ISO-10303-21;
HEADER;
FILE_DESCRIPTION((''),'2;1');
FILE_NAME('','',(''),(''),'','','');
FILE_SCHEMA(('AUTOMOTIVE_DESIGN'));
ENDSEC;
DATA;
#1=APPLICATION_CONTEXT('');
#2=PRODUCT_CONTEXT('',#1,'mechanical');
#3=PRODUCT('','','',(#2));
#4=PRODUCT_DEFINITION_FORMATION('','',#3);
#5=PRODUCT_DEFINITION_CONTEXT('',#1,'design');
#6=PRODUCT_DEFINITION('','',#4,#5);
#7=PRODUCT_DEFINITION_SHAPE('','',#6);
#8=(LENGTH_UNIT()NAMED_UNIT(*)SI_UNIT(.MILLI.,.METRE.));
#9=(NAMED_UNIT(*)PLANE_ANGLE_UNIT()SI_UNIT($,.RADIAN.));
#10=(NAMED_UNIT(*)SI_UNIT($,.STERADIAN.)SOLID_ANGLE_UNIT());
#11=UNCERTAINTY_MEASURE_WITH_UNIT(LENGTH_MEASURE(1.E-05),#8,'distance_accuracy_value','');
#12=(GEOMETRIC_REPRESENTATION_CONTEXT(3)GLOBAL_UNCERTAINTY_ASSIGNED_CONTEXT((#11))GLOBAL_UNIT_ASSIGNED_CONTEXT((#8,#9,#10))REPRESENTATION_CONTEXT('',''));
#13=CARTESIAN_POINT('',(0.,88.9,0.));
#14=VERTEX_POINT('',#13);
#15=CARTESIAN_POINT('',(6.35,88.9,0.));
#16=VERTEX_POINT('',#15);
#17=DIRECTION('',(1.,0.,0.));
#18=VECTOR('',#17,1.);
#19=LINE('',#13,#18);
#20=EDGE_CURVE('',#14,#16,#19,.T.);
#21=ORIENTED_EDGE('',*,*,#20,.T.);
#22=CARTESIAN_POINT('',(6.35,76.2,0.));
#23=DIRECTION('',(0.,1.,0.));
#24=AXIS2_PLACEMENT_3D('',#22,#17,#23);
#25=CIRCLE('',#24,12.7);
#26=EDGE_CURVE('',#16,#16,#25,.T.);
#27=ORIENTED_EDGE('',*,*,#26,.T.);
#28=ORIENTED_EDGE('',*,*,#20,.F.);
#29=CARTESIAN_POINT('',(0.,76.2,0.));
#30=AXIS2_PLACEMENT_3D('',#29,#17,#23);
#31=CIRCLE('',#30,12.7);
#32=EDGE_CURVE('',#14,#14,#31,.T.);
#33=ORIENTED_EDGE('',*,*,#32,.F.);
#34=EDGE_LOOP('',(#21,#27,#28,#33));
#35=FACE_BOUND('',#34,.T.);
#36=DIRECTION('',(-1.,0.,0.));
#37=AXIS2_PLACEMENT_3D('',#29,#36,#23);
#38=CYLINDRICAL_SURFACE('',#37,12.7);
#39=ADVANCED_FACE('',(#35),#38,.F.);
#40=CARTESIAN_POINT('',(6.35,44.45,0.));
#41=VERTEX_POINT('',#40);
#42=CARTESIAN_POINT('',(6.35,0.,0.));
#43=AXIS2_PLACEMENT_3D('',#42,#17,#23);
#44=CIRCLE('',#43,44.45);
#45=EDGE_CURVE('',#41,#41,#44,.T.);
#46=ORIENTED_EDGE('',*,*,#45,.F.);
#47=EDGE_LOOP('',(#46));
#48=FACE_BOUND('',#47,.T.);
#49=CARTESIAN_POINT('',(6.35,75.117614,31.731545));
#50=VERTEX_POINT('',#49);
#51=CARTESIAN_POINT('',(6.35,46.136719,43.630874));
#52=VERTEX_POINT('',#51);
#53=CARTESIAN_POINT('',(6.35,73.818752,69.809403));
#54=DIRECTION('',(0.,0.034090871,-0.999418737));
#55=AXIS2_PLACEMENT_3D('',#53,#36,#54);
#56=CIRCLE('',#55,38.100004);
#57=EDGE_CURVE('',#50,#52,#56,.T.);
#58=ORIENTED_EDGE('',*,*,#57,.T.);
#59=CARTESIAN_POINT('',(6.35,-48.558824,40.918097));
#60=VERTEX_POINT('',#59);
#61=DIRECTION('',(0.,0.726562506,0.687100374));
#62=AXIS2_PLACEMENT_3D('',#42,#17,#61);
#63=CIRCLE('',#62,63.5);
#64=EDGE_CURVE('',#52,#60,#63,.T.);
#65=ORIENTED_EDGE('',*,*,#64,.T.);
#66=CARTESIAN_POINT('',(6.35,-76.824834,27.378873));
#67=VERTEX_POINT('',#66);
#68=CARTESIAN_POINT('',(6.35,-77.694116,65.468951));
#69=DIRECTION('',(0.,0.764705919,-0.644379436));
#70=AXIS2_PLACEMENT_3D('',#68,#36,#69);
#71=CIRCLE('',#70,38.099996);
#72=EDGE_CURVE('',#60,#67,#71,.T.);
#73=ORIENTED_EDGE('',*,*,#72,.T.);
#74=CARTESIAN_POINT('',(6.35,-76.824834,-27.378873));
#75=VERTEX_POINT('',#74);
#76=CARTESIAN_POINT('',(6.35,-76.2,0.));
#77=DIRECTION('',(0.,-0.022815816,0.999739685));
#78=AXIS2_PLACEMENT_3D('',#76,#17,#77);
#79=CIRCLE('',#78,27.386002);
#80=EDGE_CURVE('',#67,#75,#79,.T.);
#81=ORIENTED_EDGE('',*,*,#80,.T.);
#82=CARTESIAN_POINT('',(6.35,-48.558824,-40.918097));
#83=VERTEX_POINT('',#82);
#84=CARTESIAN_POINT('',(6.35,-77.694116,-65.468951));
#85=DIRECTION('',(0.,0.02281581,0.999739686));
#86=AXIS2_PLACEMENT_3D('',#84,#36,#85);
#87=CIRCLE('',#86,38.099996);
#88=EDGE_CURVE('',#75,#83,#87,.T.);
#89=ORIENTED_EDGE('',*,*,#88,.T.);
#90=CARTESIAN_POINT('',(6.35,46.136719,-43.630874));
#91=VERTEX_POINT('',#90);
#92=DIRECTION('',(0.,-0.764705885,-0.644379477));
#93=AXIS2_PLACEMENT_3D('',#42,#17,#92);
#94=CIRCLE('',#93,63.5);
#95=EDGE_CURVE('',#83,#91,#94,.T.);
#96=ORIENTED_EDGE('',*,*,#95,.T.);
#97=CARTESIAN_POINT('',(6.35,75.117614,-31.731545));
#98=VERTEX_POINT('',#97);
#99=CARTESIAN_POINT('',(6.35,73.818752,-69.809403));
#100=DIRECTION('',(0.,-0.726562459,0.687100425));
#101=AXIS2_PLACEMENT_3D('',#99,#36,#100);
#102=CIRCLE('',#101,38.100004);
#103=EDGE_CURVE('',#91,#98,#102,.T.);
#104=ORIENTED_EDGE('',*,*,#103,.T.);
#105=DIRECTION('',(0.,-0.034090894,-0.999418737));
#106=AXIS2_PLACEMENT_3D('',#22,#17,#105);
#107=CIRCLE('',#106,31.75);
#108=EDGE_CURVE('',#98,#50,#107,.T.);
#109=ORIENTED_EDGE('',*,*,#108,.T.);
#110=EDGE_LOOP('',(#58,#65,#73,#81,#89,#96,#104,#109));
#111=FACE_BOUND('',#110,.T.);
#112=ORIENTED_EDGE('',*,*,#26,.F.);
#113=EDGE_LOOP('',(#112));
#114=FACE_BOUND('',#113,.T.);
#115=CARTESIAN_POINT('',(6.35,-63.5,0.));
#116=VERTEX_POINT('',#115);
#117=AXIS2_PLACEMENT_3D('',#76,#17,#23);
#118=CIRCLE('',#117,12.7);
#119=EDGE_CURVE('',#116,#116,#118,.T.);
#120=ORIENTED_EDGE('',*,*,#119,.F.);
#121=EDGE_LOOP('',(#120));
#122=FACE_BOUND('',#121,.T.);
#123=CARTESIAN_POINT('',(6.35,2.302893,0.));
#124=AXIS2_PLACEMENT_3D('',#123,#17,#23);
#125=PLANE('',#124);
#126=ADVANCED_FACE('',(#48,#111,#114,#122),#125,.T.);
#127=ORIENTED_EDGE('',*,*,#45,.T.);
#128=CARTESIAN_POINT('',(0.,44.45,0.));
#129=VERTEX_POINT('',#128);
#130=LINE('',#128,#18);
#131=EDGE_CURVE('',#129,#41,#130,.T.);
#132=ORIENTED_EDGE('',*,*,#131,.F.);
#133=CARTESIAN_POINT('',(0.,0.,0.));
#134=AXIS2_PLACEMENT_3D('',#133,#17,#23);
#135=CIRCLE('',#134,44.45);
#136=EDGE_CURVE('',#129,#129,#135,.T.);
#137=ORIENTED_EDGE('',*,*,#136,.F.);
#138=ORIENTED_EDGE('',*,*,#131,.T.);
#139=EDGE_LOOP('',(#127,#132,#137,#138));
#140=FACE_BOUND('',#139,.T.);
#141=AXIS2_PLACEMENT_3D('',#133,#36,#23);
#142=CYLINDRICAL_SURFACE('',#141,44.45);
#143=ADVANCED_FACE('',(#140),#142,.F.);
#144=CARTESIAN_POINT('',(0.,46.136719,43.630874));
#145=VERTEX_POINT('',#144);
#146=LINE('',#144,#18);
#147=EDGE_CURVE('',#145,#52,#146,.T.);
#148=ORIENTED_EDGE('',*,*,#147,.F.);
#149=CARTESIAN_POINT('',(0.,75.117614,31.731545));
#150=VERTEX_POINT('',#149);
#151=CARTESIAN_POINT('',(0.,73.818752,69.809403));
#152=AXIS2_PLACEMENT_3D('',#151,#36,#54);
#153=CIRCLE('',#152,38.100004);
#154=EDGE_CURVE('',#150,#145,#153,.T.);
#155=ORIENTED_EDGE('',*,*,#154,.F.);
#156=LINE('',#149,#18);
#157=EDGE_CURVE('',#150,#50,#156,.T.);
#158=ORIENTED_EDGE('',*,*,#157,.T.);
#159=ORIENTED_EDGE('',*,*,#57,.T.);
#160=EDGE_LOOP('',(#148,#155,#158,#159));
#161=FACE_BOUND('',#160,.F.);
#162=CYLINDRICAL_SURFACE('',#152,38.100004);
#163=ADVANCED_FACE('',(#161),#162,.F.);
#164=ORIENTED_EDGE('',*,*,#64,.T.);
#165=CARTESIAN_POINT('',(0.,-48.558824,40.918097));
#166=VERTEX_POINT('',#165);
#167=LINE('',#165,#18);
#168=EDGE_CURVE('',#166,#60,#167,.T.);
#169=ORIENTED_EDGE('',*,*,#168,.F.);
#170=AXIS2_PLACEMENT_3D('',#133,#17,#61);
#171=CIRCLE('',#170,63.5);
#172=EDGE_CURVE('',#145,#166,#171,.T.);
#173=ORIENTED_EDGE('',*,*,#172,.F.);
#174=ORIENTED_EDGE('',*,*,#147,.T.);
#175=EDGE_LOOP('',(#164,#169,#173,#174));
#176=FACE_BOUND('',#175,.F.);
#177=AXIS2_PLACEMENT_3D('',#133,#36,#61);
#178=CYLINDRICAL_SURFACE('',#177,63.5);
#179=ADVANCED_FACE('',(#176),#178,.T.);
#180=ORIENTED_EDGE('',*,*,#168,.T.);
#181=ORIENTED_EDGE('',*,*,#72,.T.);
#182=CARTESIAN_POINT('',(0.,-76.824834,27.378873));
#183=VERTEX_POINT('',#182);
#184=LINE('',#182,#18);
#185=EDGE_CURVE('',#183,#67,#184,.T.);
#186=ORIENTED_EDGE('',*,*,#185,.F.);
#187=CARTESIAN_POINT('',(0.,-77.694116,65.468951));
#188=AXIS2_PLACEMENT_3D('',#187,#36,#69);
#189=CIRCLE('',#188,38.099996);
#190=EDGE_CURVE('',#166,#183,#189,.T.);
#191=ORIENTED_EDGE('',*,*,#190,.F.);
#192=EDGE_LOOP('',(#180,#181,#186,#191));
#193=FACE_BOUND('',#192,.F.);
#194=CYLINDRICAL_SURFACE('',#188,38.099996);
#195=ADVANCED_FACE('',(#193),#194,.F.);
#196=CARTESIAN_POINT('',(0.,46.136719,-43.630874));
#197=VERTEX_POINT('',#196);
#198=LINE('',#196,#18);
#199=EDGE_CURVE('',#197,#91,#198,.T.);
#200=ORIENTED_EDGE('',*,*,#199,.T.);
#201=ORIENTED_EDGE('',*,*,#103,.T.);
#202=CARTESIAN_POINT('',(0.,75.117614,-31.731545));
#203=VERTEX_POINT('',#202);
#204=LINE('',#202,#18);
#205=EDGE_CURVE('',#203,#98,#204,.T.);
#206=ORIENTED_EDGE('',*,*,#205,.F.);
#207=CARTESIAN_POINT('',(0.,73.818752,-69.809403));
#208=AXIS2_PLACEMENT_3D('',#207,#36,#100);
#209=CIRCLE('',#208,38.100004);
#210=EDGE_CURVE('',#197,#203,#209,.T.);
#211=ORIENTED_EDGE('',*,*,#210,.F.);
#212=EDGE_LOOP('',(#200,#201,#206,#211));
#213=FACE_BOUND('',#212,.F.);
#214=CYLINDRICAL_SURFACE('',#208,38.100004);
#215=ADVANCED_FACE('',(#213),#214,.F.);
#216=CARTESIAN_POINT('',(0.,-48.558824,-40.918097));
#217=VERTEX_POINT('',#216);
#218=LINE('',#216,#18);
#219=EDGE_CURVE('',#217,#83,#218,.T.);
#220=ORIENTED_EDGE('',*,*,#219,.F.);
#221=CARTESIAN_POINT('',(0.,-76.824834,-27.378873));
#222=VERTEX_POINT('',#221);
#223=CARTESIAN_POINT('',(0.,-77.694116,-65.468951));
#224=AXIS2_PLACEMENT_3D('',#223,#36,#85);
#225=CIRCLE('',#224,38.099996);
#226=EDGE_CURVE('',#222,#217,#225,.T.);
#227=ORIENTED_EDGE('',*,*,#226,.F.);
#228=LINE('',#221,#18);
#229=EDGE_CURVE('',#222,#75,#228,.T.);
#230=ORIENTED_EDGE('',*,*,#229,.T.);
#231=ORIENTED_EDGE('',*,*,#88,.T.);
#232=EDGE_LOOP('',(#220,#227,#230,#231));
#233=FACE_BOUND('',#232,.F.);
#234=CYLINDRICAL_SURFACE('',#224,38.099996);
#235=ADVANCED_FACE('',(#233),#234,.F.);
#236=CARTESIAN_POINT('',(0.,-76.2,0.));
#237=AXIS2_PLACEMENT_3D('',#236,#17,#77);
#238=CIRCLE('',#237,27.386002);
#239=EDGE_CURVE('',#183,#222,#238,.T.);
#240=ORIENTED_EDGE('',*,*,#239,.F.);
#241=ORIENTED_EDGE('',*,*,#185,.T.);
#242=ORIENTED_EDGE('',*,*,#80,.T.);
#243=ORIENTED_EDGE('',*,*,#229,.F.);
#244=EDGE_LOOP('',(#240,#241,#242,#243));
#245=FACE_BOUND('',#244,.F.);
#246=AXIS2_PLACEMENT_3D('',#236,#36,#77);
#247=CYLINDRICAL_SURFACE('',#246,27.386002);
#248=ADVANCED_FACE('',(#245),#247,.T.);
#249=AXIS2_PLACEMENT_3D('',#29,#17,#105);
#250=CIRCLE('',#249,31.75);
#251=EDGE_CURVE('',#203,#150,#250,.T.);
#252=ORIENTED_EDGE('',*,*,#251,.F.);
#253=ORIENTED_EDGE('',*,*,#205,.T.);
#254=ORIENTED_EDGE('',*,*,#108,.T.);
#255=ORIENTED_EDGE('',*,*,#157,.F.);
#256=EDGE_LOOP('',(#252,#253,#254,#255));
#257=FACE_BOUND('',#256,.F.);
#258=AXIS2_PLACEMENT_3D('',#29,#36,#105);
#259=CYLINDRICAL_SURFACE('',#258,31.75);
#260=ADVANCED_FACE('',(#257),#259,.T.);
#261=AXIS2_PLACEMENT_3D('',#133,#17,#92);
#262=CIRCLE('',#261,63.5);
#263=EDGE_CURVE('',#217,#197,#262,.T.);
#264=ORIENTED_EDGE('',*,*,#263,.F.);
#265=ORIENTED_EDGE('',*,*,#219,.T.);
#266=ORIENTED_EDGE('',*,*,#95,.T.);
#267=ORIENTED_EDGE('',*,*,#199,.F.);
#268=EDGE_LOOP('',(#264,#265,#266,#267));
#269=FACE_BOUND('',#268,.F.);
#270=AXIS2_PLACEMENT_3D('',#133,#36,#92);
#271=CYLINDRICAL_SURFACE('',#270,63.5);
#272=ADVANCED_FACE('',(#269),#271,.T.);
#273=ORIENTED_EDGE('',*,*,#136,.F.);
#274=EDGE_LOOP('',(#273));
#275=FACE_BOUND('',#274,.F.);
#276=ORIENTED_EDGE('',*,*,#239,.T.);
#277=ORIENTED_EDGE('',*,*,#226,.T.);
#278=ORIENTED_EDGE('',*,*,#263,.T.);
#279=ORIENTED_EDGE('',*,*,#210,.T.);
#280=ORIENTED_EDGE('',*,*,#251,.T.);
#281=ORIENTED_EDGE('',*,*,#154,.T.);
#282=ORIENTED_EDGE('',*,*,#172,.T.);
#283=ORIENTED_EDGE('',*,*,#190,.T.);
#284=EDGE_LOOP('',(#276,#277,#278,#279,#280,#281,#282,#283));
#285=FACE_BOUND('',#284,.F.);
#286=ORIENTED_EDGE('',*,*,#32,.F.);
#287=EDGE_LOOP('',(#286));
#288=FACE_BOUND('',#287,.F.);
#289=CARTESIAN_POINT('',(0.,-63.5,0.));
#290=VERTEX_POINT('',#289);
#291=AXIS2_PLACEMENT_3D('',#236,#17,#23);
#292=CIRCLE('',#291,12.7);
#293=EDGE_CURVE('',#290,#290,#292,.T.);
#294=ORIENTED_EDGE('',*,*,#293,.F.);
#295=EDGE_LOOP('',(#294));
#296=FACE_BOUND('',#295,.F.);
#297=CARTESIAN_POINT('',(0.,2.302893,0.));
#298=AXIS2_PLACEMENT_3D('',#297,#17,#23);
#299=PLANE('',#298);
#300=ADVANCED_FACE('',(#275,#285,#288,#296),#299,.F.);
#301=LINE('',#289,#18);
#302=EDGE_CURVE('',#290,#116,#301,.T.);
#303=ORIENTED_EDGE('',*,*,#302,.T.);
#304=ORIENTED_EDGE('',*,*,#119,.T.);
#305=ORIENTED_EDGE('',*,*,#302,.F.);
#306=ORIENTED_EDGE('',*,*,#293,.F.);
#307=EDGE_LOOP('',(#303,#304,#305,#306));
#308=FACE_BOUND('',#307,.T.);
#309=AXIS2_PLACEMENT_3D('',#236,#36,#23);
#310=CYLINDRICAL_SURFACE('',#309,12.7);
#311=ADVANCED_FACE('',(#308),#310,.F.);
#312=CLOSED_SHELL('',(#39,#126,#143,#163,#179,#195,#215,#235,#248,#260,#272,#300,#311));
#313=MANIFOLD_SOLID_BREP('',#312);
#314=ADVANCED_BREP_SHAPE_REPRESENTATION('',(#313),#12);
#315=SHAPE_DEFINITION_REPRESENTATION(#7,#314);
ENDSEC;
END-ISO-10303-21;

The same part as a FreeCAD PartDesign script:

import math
import FreeCAD as App
import Part
import Sketcher

V = App.Vector
Q = App.Units.Quantity

doc = App.newDocument("Part")
params = doc.addObject("Spreadsheet::Sheet", "Params")
for row, (alias, value) in enumerate([
    ("sketch1_diameter", "1 in"),
    ("sketch1_diameter2", "3.5 in"),
    ("sketch1_radius", "1.4999998 in"),
    ("sketch1_radius2", "2.5 in"),
    ("sketch1_radius3", "1.5000002 in"),
    ("pad1_length", "0.25 in"),
], start=1):
    params.set(f"A{row}", alias)
    params.set(f"B{row}", "=" + value)
    params.setAlias(f"B{row}", alias)

body = doc.addObject("PartDesign::Body", "Body")

# Sketch on YZ plane
sketch1 = body.newObject("Sketcher::SketchObject", "Sketch")
sketch1.AttachmentSupport = (doc.getObject("YZ_Plane"), [""])
sketch1.MapMode = "FlatFace"
sketch1.addGeometry(Part.ArcOfCircle(Part.Circle(V(-78, -65, 0), V(0, 0, 1), 38), math.radians(40), math.radians(89)), False)
sketch1.addGeometry(Part.ArcOfCircle(Part.Circle(V(0, 0, 0), V(0, 0, 1), 64), math.radians(-140), math.radians(-43)), False)
sketch1.addGeometry(Part.ArcOfCircle(Part.Circle(V(74, -70, 0), V(0, 0, 1), 38), math.radians(88), math.radians(137)), False)
sketch1.addGeometry(Part.ArcOfCircle(Part.Circle(V(76, 0, 0), V(0, 0, 1), 32), math.radians(-92), math.radians(92)), False)
sketch1.addGeometry(Part.ArcOfCircle(Part.Circle(V(74, 70, 0), V(0, 0, 1), 38), math.radians(-137), math.radians(-88)), False)
sketch1.addGeometry(Part.ArcOfCircle(Part.Circle(V(0, 0, 0), V(0, 0, 1), 64), math.radians(43), math.radians(140)), False)
sketch1.addGeometry(Part.ArcOfCircle(Part.Circle(V(-78, 65, 0), V(0, 0, 1), 38), math.radians(-89), math.radians(-40)), False)
sketch1.addGeometry(Part.ArcOfCircle(Part.Circle(V(-76, 0, 0), V(0, 0, 1), 27), math.radians(91), math.radians(269)), False)
sketch1.addGeometry(Part.Circle(V(-76, 0, 0), V(0, 0, 1), 13), False)
sketch1.addGeometry(Part.Circle(V(0, 0, 0), V(0, 0, 1), 44), False)
sketch1.addGeometry(Part.Circle(V(76, 0, 0), V(0, 0, 1), 13), False)
sketch1.addConstraint(Sketcher.Constraint("Tangent", 0, 1, 1, 1))
sketch1.addConstraint(Sketcher.Constraint("Tangent", 1, 2, 2, 2))
sketch1.addConstraint(Sketcher.Constraint("Tangent", 2, 1, 3, 1))
sketch1.addConstraint(Sketcher.Constraint("Tangent", 3, 2, 4, 2))
sketch1.addConstraint(Sketcher.Constraint("Tangent", 4, 1, 5, 1))
sketch1.addConstraint(Sketcher.Constraint("Tangent", 5, 2, 6, 2))
sketch1.addConstraint(Sketcher.Constraint("Tangent", 6, 1, 7, 1))
sketch1.addConstraint(Sketcher.Constraint("Tangent", 7, 2, 0, 2))
sketch1.addConstraint(Sketcher.Constraint("Coincident", 1, 3, -1, 1))
sketch1.addConstraint(Sketcher.Constraint("Coincident", 5, 3, -1, 1))
sketch1.addConstraint(Sketcher.Constraint("Coincident", 9, 3, -1, 1))
sketch1.addConstraint(Sketcher.Constraint("Coincident", 8, 3, 7, 3))
sketch1.addConstraint(Sketcher.Constraint("Coincident", 10, 3, 3, 3))
sketch1.addConstraint(Sketcher.Constraint("Equal", 2, 4))
sketch1.addConstraint(Sketcher.Constraint("Equal", 1, 5))
sketch1.addConstraint(Sketcher.Constraint("Equal", 0, 6))
sketch1.addConstraint(Sketcher.Constraint("Equal", 8, 10))
sketch1.addConstraint(Sketcher.Constraint("Symmetric", 3, 3, 7, 3, -1, 1))
sketch1.addConstraint(Sketcher.Constraint("PointOnObject", 3, 3, -1))
sketch1.addConstraint(Sketcher.Constraint("Diameter", 8, Q("1 in")))
sketch1.addConstraint(Sketcher.Constraint("Diameter", 9, Q("3.5 in")))
sketch1.addConstraint(Sketcher.Constraint("Radius", 0, Q("1.4999998 in")))
sketch1.addConstraint(Sketcher.Constraint("Radius", 1, Q("2.5 in")))
sketch1.addConstraint(Sketcher.Constraint("Radius", 2, Q("1.5000002 in")))
sketch1.addConstraint(Sketcher.Constraint("Radius", 3, Q("1.25 in")))
sketch1.addConstraint(Sketcher.Constraint("DistanceX", -1, 1, 3, 3, Q("3 in")))
sketch1.addConstraint(Sketcher.Constraint("Radius", 7, Q("27.386002 mm")))
sketch1.setExpression("Constraints[19]", "Params.sketch1_diameter")
sketch1.setExpression("Constraints[20]", "Params.sketch1_diameter2")
sketch1.setExpression("Constraints[21]", "Params.sketch1_radius")
sketch1.setExpression("Constraints[22]", "Params.sketch1_radius2")
sketch1.setExpression("Constraints[23]", "Params.sketch1_radius3")
pad1 = body.newObject("PartDesign::Pad", "Pad")
pad1.Profile = sketch1
pad1.setExpression("Length", "Params.pad1_length")

doc.recompute()
